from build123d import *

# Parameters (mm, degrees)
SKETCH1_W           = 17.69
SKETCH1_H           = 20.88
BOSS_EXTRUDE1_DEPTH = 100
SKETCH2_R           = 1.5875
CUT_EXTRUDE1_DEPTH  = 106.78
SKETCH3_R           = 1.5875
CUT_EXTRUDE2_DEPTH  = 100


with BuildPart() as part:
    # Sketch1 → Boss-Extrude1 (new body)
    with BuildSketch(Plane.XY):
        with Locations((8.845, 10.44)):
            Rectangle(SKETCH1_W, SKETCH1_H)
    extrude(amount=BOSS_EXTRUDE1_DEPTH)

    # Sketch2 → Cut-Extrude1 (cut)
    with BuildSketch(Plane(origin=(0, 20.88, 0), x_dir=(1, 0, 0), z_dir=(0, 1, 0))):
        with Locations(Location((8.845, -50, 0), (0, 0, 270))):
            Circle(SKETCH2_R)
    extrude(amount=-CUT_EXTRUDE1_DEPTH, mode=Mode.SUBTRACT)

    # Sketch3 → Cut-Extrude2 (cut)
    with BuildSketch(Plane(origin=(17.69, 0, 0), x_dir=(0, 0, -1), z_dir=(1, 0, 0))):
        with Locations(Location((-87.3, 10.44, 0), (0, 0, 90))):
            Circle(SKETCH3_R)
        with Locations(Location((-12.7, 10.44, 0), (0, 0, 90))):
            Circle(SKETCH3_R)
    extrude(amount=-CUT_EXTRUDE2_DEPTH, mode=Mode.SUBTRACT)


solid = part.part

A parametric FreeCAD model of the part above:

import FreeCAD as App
import Part
import Sketcher
from FreeCAD import Vector
Q = App.Units.Quantity

doc = App.newDocument("Part")
body = doc.addObject("PartDesign::Body", "Body")

# Sketch on XY plane
sketch1 = body.newObject("Sketcher::SketchObject", "Sketch")
sketch1.AttachmentSupport = (doc.getObject("XY_Plane"), [""])
sketch1.MapMode = "FlatFace"
sketch1.addGeometry([
    Part.LineSegment(Vector(0, 20.88, 0), Vector(0, 0, 0)),
    Part.LineSegment(Vector(0, 0, 0), Vector(17.69, 0, 0)),
    Part.LineSegment(Vector(17.69, 0, 0), Vector(17.69, 20.88, 0)),
    Part.LineSegment(Vector(17.69, 20.88, 0), Vector(0, 20.88, 0)),
], False)
sketch1.addConstraint([
    Sketcher.Constraint("Coincident", 0, 2, 1, 1),
    Sketcher.Constraint("Coincident", 1, 2, 2, 1),
    Sketcher.Constraint("Coincident", 2, 2, 3, 1),
    Sketcher.Constraint("Coincident", 3, 2, 0, 1),
    Sketcher.Constraint("Vertical", 0),
    Sketcher.Constraint("Horizontal", 1),
    Sketcher.Constraint("Vertical", 2),
    Sketcher.Constraint("Horizontal", 3),
    Sketcher.Constraint("Coincident", 0, 2, -1, 1),
    Sketcher.Constraint("DistanceX", 1, 1, 1, 2, Q("17.69 mm")),
    Sketcher.Constraint("DistanceY", 0, 2, 0, 1, Q("20.88 mm")),
])
pad1 = body.newObject("PartDesign::Pad", "Pad")
pad1.Profile = sketch1
pad1.Length = 100

# Sketch on XZ plane
sketch2 = body.newObject("Sketcher::SketchObject", "Sketch001")
sketch2.AttachmentSupport = (doc.getObject("XZ_Plane"), [""])
sketch2.MapMode = "FlatFace"
sketch2.AttachmentOffset = App.Placement(Vector(0, 0, -20.88), App.Rotation())
sketch2.addGeometry(Part.Circle(Vector(8.845, 50, 0), Vector(0, 0, 1), 1.5875), False)
sketch2.addConstraint([
    Sketcher.Constraint("Diameter", 0, Q("3.175 mm")),
    Sketcher.Constraint("DistanceY", -1, 1, 0, 3, Q("50 mm")),
    Sketcher.Constraint("DistanceX", -1, 1, 0, 3, Q("8.845 mm")),
])
pocket1 = body.newObject("PartDesign::Pocket", "Pocket")
pocket1.Profile = sketch2
pocket1.Length = 106.78
pocket1.Reversed = True

# Sketch on YZ plane
sketch3 = body.newObject("Sketcher::SketchObject", "Sketch002")
sketch3.AttachmentSupport = (doc.getObject("YZ_Plane"), [""])
sketch3.MapMode = "FlatFace"
sketch3.AttachmentOffset = App.Placement(Vector(0, 0, 17.69), App.Rotation())
sketch3.addGeometry([
    Part.Circle(Vector(10.44, 87.3, 0), Vector(0, 0, 1), 1.5875),
    Part.Circle(Vector(10.44, 12.7, 0), Vector(0, 0, 1), 1.5875),
], False)
sketch3.addConstraint([
    Sketcher.Constraint("Equal", 0, 1),
    Sketcher.Constraint("Vertical", 0, 3, 1, 3),
    Sketcher.Constraint("Diameter", 0, Q("3.175 mm")),
    Sketcher.Constraint("DistanceY", -1, 1, 0, 3, Q("87.3 mm")),
    Sketcher.Constraint("DistanceY", -1, 1, 1, 3, Q("12.7 mm")),
    Sketcher.Constraint("DistanceX", -1, 1, 0, 3, Q("10.44 mm")),
])
pocket2 = body.newObject("PartDesign::Pocket", "Pocket001")
pocket2.Profile = sketch3
pocket2.Length = 100

doc.recompute()
